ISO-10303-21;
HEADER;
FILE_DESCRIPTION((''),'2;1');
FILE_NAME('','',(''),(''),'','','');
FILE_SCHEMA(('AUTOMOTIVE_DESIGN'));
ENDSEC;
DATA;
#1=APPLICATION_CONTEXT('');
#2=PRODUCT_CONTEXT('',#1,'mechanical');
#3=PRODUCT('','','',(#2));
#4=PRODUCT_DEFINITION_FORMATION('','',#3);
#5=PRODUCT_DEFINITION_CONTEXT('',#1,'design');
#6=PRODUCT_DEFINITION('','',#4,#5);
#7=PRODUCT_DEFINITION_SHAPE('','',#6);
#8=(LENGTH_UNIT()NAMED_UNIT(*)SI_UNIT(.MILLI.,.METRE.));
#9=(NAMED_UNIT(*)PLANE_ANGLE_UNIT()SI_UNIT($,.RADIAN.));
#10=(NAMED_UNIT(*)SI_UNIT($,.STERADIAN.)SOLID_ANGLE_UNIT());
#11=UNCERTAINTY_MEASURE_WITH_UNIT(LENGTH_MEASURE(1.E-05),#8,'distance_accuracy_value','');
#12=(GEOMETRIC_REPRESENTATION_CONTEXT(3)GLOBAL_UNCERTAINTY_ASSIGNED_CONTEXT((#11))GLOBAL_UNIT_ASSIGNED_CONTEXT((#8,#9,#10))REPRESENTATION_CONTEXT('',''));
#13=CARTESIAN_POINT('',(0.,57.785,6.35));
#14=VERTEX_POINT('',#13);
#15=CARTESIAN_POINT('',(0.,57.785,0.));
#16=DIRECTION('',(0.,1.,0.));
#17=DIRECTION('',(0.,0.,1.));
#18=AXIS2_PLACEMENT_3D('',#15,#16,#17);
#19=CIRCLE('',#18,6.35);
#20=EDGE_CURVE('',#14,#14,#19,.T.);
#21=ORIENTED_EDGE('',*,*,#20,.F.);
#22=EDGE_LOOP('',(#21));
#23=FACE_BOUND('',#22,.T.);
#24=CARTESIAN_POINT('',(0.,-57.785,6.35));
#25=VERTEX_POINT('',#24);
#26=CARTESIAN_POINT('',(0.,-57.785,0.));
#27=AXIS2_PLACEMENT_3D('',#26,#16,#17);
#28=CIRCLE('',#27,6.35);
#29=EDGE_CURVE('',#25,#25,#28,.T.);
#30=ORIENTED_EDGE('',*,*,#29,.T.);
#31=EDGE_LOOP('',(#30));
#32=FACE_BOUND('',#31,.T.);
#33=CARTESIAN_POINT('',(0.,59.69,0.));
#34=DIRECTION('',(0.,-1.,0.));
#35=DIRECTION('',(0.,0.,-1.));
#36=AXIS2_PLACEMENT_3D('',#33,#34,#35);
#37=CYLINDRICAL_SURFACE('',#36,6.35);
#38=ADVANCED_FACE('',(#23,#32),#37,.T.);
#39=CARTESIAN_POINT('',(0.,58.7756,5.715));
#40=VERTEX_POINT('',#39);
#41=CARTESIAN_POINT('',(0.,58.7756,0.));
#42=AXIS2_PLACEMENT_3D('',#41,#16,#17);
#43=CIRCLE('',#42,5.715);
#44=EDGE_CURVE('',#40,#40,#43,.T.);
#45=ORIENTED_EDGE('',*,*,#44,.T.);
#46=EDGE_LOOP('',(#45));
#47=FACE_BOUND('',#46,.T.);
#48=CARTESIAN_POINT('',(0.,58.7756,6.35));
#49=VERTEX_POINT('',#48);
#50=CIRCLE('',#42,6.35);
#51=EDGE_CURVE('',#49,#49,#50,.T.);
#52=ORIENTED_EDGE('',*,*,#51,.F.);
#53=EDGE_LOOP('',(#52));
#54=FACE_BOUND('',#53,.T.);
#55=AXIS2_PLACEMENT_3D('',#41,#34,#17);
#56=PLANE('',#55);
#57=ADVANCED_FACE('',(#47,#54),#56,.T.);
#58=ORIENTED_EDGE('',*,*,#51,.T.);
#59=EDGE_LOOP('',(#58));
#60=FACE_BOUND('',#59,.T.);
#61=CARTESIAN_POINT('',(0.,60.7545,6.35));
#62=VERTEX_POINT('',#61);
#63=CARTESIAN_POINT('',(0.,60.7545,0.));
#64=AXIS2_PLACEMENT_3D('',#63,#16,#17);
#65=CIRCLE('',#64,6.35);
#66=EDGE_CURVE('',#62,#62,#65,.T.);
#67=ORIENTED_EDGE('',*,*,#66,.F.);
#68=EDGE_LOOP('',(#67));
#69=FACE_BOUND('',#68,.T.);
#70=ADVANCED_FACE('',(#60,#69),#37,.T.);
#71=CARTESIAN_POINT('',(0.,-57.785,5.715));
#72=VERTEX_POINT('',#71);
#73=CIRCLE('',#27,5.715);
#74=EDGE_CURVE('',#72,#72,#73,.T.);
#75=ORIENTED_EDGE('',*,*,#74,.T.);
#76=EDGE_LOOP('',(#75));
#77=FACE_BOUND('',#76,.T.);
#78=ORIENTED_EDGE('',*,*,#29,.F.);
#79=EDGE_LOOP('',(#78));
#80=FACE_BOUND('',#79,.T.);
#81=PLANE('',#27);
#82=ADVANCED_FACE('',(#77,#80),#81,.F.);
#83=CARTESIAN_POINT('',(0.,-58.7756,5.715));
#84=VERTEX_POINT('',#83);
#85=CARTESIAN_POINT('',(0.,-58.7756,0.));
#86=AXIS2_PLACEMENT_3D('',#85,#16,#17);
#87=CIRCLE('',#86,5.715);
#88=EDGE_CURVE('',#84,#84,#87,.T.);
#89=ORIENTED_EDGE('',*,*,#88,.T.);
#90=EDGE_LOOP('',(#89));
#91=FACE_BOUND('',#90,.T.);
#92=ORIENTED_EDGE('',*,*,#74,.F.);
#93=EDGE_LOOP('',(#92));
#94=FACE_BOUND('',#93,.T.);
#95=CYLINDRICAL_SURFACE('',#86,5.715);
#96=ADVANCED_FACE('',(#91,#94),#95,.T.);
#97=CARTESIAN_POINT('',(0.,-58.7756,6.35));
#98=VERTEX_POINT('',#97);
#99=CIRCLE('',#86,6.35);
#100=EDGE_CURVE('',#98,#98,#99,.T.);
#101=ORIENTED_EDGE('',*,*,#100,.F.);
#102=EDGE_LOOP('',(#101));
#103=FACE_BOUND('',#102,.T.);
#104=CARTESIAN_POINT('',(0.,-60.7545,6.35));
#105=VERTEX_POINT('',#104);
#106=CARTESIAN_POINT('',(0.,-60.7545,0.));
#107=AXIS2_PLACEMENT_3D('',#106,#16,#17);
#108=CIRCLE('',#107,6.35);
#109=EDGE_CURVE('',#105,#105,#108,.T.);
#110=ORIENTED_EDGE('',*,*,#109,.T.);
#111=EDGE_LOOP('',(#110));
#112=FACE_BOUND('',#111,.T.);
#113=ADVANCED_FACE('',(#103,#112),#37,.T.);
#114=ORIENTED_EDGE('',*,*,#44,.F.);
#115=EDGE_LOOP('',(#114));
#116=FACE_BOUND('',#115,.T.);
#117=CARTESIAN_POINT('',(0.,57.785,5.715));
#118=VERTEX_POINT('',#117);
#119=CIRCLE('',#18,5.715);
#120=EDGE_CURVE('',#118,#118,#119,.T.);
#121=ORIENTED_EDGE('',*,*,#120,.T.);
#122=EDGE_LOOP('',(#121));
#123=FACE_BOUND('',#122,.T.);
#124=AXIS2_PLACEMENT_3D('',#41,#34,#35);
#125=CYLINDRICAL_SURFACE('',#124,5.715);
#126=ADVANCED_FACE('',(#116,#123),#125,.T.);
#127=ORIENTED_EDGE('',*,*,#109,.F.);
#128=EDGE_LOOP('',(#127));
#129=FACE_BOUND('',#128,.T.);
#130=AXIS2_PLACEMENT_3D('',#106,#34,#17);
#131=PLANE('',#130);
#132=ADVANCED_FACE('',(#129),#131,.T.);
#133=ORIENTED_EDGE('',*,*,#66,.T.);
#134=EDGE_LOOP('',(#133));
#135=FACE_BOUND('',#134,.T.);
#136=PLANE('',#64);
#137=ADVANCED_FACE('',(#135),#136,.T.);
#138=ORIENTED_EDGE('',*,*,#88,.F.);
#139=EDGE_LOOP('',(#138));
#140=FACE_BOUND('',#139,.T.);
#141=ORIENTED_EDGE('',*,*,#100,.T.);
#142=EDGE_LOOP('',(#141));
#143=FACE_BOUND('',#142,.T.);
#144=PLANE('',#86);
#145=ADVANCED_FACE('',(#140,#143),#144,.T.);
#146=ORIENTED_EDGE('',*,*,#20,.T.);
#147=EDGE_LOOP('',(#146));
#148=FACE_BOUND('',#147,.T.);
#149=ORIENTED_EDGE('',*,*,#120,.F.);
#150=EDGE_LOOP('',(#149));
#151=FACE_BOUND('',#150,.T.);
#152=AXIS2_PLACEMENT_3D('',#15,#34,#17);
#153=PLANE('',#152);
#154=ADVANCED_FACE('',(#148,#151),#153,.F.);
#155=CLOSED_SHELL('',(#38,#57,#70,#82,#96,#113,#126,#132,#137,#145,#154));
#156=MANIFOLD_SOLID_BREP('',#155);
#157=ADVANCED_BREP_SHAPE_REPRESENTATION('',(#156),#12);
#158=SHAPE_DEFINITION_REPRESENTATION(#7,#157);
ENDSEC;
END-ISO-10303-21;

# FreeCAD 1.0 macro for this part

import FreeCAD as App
import Part
import Sketcher
Q = App.Units.Quantity

doc = App.newDocument("Part")
body = doc.addObject("PartDesign::Body", "Body")

sketch1 = body.newObject("Sketcher::SketchObject", "Sketch")
sketch1.AttachmentSupport = (doc.getObject("XZ_Plane"), [""])
sketch1.MapMode = "FlatFace"
sketch1.addGeometry(Part.Circle(App.Vector(0, 0, 0), App.Vector(0, 0, 1), 6), False)
sketch1.addConstraint([
    Sketcher.Constraint("Coincident", 0, 3, -1, 1),
    Sketcher.Constraint("Diameter", 0, Q("0.5 in")),
])
pad1 = body.newObject("PartDesign::Pad", "Pad")
pad1.Profile = sketch1
pad1.Length = Q("4.7 in")
pad1.Midplane = True

sketch2 = body.newObject("Sketcher::SketchObject", "Sketch001")
sketch2.AttachmentSupport = (doc.getObject("XZ_Plane"), [""])
sketch2.MapMode = "FlatFace"
sketch2.AttachmentOffset = App.Placement(App.Vector(0, 0, 2.275 * 25.4), App.Rotation())
sketch2.addGeometry([
    Part.Circle(App.Vector(0, 0, 0), App.Vector(0, 0, 1), 6),
    Part.Circle(App.Vector(0, 0, 0), App.Vector(0, 0, 1), 6),
], False)
sketch2.addConstraint([
    Sketcher.Constraint("Coincident", 0, 3, -1, 1),
    Sketcher.Constraint("Coincident", 1, 3, -1, 1),
    Sketcher.Constraint("Diameter", 0, Q("0.5 in")),
    Sketcher.Constraint("Diameter", 1, Q("0.45 in")),
])
pocket1 = body.newObject("PartDesign::Pocket", "Pocket")
pocket1.Profile = sketch2
pocket1.Length = Q("0.039 in")
pocket1.Reversed = True
doc.recompute()

mirrored = body.newObject("PartDesign::Mirrored", "Mirrored")
mirrored.Originals = [pocket1]
mirrored.MirrorPlane = (doc.getObject("XZ_Plane"), [""])
body.Tip = mirrored

sketch3 = body.newObject("Sketcher::SketchObject", "Sketch002")
sketch3.AttachmentSupport = (doc.getObject("XZ_Plane"), [""])
sketch3.MapMode = "FlatFace"
sketch3.AttachmentOffset = App.Placement(App.Vector(0, 0, -2.35 * 25.4), App.Rotation())
sketch3.addGeometry(Part.Circle(App.Vector(0, 0, 0), App.Vector(0, 0, 1), 6), False)
sketch3.addConstraint([
    Sketcher.Constraint("Coincident", 0, 3, -1, 1),
    Sketcher.Constraint("Diameter", 0, Q("0.5 in")),
])
pad2 = body.newObject("PartDesign::Pad", "Pad001")
pad2.Profile = sketch3
pad2.Length = 1.0645
pad2.Reversed = True
doc.recompute()

mirrored2 = body.newObject("PartDesign::Mirrored", "Mirrored001")
mirrored2.Originals = [pad2]
mirrored2.MirrorPlane = (doc.getObject("XZ_Plane"), [""])
body.Tip = mirrored2

doc.recompute()
